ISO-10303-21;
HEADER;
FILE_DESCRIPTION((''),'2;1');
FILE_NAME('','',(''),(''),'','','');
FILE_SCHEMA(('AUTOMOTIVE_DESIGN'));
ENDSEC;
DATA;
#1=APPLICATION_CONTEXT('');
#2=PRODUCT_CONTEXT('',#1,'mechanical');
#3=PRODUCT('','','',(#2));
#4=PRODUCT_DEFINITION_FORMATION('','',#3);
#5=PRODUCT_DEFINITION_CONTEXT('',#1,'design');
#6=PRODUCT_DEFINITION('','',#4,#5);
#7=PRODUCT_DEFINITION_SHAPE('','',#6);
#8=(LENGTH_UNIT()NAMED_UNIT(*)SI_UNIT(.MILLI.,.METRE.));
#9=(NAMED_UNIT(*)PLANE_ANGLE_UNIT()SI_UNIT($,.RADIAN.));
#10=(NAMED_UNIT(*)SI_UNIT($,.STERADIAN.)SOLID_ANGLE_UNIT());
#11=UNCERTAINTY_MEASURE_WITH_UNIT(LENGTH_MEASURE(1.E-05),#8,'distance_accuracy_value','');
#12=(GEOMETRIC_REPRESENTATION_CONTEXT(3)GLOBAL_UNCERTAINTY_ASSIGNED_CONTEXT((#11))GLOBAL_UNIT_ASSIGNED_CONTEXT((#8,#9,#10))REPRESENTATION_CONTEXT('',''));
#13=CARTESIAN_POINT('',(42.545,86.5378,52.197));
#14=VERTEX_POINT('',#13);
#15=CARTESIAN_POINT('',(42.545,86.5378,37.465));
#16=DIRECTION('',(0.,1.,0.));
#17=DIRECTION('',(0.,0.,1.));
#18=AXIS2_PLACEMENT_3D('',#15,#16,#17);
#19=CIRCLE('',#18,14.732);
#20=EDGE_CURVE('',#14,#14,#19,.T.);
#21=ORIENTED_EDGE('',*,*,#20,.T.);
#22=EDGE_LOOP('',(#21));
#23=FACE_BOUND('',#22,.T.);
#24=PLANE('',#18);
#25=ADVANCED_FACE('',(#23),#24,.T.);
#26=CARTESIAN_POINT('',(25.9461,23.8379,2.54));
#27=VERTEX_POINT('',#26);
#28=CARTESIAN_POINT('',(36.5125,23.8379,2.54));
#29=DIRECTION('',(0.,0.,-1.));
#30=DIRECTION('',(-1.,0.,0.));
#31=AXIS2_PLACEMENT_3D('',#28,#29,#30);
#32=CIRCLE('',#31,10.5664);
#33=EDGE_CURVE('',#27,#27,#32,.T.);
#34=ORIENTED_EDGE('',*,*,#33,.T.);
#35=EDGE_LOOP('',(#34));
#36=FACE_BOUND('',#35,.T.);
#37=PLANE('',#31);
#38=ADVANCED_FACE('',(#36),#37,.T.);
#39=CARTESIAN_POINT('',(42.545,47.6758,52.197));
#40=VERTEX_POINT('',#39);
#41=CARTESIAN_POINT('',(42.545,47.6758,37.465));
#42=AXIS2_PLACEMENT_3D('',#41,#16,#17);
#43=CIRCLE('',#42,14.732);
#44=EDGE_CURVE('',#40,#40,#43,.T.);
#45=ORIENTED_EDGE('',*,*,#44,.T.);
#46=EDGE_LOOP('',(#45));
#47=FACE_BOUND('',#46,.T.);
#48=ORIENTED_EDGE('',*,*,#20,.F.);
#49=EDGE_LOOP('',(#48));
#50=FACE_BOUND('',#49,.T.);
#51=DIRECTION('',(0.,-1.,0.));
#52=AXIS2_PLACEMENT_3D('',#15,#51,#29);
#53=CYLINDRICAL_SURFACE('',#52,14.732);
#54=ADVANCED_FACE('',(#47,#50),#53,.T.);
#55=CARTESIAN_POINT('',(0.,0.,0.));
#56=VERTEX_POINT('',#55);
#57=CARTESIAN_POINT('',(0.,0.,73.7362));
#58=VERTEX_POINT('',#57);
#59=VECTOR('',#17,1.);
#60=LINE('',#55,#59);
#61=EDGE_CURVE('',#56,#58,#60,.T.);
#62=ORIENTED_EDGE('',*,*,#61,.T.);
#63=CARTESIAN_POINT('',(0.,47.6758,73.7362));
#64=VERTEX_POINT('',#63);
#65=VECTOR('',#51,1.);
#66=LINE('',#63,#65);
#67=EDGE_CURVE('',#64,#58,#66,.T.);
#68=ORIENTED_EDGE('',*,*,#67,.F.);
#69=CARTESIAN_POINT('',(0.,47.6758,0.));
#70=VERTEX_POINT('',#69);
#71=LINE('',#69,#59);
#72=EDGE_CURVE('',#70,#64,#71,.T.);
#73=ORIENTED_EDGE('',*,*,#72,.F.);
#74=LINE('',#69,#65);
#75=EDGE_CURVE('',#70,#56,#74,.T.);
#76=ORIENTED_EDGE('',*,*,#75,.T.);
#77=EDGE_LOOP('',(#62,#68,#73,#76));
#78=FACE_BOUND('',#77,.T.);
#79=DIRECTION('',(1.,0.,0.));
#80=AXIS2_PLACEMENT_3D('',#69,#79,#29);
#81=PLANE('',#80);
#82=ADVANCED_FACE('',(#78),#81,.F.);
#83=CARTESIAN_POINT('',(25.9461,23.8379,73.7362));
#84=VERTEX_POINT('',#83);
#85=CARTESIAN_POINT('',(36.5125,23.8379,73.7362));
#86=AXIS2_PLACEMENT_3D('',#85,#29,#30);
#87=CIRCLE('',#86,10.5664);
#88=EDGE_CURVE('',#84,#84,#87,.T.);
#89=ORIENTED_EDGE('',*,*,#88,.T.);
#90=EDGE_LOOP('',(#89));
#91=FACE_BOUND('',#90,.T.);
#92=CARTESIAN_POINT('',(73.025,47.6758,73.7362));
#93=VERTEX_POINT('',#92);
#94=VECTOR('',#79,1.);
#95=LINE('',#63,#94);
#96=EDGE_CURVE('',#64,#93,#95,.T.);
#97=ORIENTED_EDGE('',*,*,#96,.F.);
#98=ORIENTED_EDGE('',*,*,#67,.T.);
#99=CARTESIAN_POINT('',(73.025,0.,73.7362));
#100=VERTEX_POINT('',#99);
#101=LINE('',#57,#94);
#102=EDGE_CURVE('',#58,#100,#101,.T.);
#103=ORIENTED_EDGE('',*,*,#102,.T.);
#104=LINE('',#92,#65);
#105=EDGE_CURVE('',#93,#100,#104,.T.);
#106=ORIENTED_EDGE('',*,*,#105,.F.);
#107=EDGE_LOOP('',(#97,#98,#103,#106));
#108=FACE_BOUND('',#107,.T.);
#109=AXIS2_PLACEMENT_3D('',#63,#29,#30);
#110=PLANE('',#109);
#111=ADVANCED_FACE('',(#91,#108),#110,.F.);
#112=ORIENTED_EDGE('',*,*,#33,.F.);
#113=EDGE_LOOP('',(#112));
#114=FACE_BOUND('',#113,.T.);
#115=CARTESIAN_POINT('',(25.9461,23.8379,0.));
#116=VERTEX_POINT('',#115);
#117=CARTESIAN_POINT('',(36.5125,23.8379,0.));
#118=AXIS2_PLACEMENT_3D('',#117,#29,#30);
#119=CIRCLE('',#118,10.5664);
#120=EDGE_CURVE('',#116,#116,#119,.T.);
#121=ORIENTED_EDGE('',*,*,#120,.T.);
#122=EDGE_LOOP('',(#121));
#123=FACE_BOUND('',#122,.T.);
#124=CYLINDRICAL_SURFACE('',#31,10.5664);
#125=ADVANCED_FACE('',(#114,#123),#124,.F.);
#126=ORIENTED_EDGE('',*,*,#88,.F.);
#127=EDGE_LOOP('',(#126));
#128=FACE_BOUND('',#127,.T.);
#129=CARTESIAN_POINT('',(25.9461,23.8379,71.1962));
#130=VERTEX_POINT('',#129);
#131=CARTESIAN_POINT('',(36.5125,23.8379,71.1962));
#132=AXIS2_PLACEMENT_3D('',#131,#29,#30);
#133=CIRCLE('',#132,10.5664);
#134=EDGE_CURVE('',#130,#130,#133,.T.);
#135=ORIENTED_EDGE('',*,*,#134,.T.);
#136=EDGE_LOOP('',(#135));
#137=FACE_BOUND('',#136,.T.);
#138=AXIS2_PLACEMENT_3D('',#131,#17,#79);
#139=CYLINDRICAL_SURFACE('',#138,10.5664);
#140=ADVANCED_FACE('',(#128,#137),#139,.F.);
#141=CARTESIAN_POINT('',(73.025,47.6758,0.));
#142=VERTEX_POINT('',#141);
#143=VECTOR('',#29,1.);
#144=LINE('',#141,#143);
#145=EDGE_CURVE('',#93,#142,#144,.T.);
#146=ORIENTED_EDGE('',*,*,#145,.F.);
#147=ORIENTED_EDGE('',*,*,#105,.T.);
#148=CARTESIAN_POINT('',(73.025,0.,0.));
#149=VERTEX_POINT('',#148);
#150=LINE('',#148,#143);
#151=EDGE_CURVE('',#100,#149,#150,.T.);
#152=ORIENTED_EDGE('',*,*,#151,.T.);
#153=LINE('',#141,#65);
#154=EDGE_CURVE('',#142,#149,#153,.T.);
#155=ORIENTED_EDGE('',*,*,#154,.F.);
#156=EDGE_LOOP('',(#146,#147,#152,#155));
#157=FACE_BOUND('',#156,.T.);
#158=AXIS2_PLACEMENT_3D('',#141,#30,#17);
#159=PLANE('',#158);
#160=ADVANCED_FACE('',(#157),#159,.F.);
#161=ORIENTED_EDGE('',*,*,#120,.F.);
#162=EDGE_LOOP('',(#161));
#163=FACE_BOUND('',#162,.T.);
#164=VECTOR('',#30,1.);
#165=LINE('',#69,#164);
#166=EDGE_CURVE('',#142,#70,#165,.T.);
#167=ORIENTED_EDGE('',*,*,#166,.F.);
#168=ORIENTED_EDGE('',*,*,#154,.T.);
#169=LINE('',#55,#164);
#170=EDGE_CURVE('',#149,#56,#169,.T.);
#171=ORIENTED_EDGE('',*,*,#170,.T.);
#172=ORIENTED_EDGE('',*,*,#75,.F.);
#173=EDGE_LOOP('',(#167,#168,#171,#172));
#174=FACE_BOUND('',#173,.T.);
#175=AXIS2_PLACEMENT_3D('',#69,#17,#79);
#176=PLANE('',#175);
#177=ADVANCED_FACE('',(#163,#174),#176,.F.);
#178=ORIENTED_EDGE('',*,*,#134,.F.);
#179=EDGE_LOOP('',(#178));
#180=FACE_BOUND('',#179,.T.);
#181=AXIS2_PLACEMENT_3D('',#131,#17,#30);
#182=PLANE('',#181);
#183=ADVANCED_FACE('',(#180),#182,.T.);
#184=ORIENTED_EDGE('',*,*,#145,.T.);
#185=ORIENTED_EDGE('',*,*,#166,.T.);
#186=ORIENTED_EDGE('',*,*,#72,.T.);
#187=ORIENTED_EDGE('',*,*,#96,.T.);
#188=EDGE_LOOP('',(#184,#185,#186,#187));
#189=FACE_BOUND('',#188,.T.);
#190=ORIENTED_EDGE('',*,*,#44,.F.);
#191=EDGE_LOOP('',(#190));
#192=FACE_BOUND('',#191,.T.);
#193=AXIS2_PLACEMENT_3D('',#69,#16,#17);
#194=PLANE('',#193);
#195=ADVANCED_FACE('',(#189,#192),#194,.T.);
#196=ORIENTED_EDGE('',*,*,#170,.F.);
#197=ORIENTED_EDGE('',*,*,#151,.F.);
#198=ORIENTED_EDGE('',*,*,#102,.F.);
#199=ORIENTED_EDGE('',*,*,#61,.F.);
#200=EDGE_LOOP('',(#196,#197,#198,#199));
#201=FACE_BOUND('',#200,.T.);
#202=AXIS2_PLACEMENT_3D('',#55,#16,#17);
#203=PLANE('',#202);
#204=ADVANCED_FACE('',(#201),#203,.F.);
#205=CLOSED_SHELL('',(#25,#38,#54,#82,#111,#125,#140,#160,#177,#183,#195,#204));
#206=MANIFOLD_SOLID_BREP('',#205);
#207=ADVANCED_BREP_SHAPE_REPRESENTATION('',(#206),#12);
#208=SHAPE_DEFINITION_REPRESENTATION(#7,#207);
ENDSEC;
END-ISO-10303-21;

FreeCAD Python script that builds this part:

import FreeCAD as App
import Part
import Sketcher
Q = App.Units.Quantity


def add_polygon(sketch, points):
    """Adds a closed chain of lines whose ends are joined by coincident constraints."""
    first, n = sketch.GeometryCount, len(points)
    for a, b in zip(points, points[1:] + points[:1]):
        sketch.addGeometry(Part.LineSegment(App.Vector(*a, 0), App.Vector(*b, 0)), False)
    for i in range(n):
        sketch.addConstraint(Sketcher.Constraint("Coincident", first + i, 2, first + (i + 1) % n, 1))

doc = App.newDocument("Part")
body = doc.addObject("PartDesign::Body", "Body")

sketch1 = body.newObject("Sketcher::SketchObject", "Sketch")
sketch1.AttachmentSupport = (doc.getObject("XZ_Plane"), [""])
sketch1.MapMode = "FlatFace"
add_polygon(sketch1, [(0, 0), (0, 74), (73, 74), (73, 0)])
sketch1.addConstraint(Sketcher.Constraint("Vertical", 0))
sketch1.addConstraint(Sketcher.Constraint("Horizontal", 1))
sketch1.addConstraint(Sketcher.Constraint("Vertical", 2))
sketch1.addConstraint(Sketcher.Constraint("Horizontal", 3))
sketch1.addConstraint(Sketcher.Constraint("Coincident", 3, 2, -1, 1))
sketch1.addConstraint(Sketcher.Constraint("DistanceX", 1, 1, 1, 2, Q("2.875 in")))
sketch1.addConstraint(Sketcher.Constraint("DistanceY", 0, 1, 0, 2, Q("2.903 in")))
pad1 = body.newObject("PartDesign::Pad", "Pad")
pad1.Profile = sketch1
pad1.Length = Q("1.877 in")
pad1.Reversed = True

sketch2 = body.newObject("Sketcher::SketchObject", "Sketch001")
sketch2.AttachmentSupport = (doc.getObject("XY_Plane"), [""])
sketch2.MapMode = "FlatFace"
sketch2.addGeometry(Part.Circle(App.Vector(37, 24, 0), App.Vector(0, 0, 1), 11), False)
sketch2.addConstraint(Sketcher.Constraint("Diameter", 0, Q("0.832 in")))
sketch2.addConstraint(Sketcher.Constraint("DistanceX", -1, 1, 0, 3, Q("1.4375 in")))
sketch2.addConstraint(Sketcher.Constraint("DistanceY", -1, 1, 0, 3, Q("0.9385 in")))
pocket1 = body.newObject("PartDesign::Pocket", "Pocket")
pocket1.Profile = sketch2
pocket1.Length = Q("0.1 in")
pocket1.Reversed = True

sketch3 = body.newObject("Sketcher::SketchObject", "Sketch002")
sketch3.AttachmentSupport = (doc.getObject("XZ_Plane"), [""])
sketch3.MapMode = "FlatFace"
sketch3.AttachmentOffset = App.Placement(App.Vector(0, 0, -1.877 * 25.4), App.Rotation())
sketch3.addGeometry(Part.Circle(App.Vector(43, 37, 0), App.Vector(0, 0, 1), 15), False)
sketch3.addConstraint(Sketcher.Constraint("Diameter", 0, Q("1.16 in")))
sketch3.addConstraint(Sketcher.Constraint("DistanceX", -1, 1, 0, 3, Q("1.675 in")))
sketch3.addConstraint(Sketcher.Constraint("DistanceY", -1, 1, 0, 3, Q("1.475 in")))
pad2 = body.newObject("PartDesign::Pad", "Pad001")
pad2.Profile = sketch3
pad2.Length = Q("1.53 in")
pad2.Reversed = True
doc.recompute()

datumplane = body.newObject("PartDesign::Plane", "DatumPlane")
datumplane.AttachmentSupport = (doc.getObject("XY_Plane"), [""])
datumplane.MapMode = "FlatFace"
datumplane.AttachmentOffset = App.Placement(App.Vector(0, 0, 1.4515 * 25.4), App.Rotation())
mirrored = body.newObject("PartDesign::Mirrored", "Mirrored")
mirrored.Originals = [pocket1]
mirrored.MirrorPlane = (datumplane, [""])
body.Tip = mirrored

doc.recompute()
